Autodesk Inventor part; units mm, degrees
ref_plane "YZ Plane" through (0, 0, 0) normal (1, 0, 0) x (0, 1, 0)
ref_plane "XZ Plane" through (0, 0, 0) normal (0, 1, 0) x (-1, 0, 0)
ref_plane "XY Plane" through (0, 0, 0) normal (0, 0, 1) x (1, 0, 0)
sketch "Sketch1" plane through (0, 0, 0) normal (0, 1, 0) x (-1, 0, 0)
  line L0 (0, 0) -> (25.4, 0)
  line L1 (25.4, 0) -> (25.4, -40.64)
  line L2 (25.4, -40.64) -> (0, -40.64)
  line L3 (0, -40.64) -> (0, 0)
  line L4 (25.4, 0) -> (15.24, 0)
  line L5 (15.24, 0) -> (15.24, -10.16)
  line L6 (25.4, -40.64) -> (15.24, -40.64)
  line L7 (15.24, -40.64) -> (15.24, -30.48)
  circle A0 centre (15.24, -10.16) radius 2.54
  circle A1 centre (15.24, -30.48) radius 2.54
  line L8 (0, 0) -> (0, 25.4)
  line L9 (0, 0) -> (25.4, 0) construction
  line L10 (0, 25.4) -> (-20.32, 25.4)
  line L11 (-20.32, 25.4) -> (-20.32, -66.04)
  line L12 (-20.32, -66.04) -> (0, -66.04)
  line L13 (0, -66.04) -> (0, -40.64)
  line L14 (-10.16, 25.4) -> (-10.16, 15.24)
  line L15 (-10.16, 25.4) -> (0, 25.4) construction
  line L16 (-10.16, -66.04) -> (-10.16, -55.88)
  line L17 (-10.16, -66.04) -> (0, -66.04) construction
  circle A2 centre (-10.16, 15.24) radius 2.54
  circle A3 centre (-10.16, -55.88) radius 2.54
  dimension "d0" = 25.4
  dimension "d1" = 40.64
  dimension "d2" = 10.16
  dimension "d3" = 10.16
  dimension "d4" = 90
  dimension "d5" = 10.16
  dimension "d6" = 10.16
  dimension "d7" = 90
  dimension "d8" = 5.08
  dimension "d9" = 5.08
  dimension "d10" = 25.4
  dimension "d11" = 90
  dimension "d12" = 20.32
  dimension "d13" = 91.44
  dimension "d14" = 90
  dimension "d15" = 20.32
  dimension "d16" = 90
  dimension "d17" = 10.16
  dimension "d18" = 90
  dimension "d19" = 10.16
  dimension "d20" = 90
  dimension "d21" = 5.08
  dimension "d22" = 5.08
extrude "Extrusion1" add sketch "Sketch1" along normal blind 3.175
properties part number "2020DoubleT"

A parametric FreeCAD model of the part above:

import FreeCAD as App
import Part
import Sketcher
from FreeCAD import Vector
Q = App.Units.Quantity

doc = App.newDocument("Part")
params = doc.addObject("Spreadsheet::Sheet", "Params")
for row, (alias, value) in enumerate([
    ("sketch1_diameter", "0.2 in"),
    ("sketch1_height", "1 in"),
    ("sketch1_width", "0.4 in"),
    ("sketch1_height2", "3.6 in"),
    ("pad1_length", "0.125 in"),
], start=1):
    params.set(f"A{row}", alias)
    params.set(f"B{row}", "=" + value)
    params.setAlias(f"B{row}", alias)

body = doc.addObject("PartDesign::Body", "Body")

# Sketch on XZ plane
sketch1 = body.newObject("Sketcher::SketchObject", "Sketch")
sketch1.AttachmentSupport = (doc.getObject("XZ_Plane"), [""])
sketch1.MapMode = "FlatFace"
sketch1.addGeometry(Part.LineSegment(Vector(-15.2, 0, 0), Vector(0, 0, 0)), False)
sketch1.addGeometry(Part.LineSegment(Vector(0, 0, 0), Vector(0, 25.4, 0)), False)
sketch1.addGeometry(Part.LineSegment(Vector(0, 25.4, 0), Vector(10.2, 25.4, 0)), False)
sketch1.addGeometry(Part.LineSegment(Vector(10.2, 25.4, 0), Vector(20.3, 25.4, 0)), False)
sketch1.addGeometry(Part.LineSegment(Vector(20.3, 25.4, 0), Vector(20.3, -66, 0)), False)
sketch1.addGeometry(Part.LineSegment(Vector(20.3, -66, 0), Vector(10.2, -66, 0)), False)
sketch1.addGeometry(Part.LineSegment(Vector(10.2, -66, 0), Vector(0, -66, 0)), False)
sketch1.addGeometry(Part.LineSegment(Vector(0, -66, 0), Vector(0, -40.6, 0)), False)
sketch1.addGeometry(Part.LineSegment(Vector(0, -40.6, 0), Vector(-15.2, -40.6, 0)), False)
sketch1.addGeometry(Part.LineSegment(Vector(-15.2, -40.6, 0), Vector(-25.4, -40.6, 0)), False)
sketch1.addGeometry(Part.LineSegment(Vector(-25.4, -40.6, 0), Vector(-25.4, 0, 0)), False)
sketch1.addGeometry(Part.LineSegment(Vector(-25.4, 0, 0), Vector(-15.2, 0, 0)), False)
sketch1.addGeometry(Part.Circle(Vector(-15.2, -30.5, 0), Vector(0, 0, 1), 2.5), False)
sketch1.addGeometry(Part.Circle(Vector(-15.2, -10.2, 0), Vector(0, 0, 1), 2.5), False)
sketch1.addGeometry(Part.Circle(Vector(10.2, -55.9, 0), Vector(0, 0, 1), 2.5), False)
sketch1.addGeometry(Part.Circle(Vector(10.2, 15.2, 0), Vector(0, 0, 1), 2.5), False)
sketch1.addConstraint(Sketcher.Constraint("Coincident", 0, 2, 1, 1))
sketch1.addConstraint(Sketcher.Constraint("Coincident", 1, 2, 2, 1))
sketch1.addConstraint(Sketcher.Constraint("Coincident", 2, 2, 3, 1))
sketch1.addConstraint(Sketcher.Constraint("Coincident", 3, 2, 4, 1))
sketch1.addConstraint(Sketcher.Constraint("Coincident", 4, 2, 5, 1))
sketch1.addConstraint(Sketcher.Constraint("Coincident", 5, 2, 6, 1))
sketch1.addConstraint(Sketcher.Constraint("Coincident", 6, 2, 7, 1))
sketch1.addConstraint(Sketcher.Constraint("Coincident", 7, 2, 8, 1))
sketch1.addConstraint(Sketcher.Constraint("Coincident", 8, 2, 9, 1))
sketch1.addConstraint(Sketcher.Constraint("Coincident", 9, 2, 10, 1))
sketch1.addConstraint(Sketcher.Constraint("Coincident", 10, 2, 11, 1))
sketch1.addConstraint(Sketcher.Constraint("Coincident", 11, 2, 0, 1))
sketch1.addConstraint(Sketcher.Constraint("Horizontal", 0))
sketch1.addConstraint(Sketcher.Constraint("Vertical", 1))
sketch1.addConstraint(Sketcher.Constraint("Horizontal", 2))
sketch1.addConstraint(Sketcher.Constraint("Horizontal", 3))
sketch1.addConstraint(Sketcher.Constraint("Vertical", 4))
sketch1.addConstraint(Sketcher.Constraint("Horizontal", 5))
sketch1.addConstraint(Sketcher.Constraint("Horizontal", 6))
sketch1.addConstraint(Sketcher.Constraint("Vertical", 7))
sketch1.addConstraint(Sketcher.Constraint("Horizontal", 8))
sketch1.addConstraint(Sketcher.Constraint("Horizontal", 9))
sketch1.addConstraint(Sketcher.Constraint("Vertical", 10))
sketch1.addConstraint(Sketcher.Constraint("Horizontal", 11))
sketch1.addConstraint(Sketcher.Constraint("Coincident", 0, 2, -1, 1))
sketch1.addConstraint(Sketcher.Constraint("Equal", 12, 13))
sketch1.addConstraint(Sketcher.Constraint("Equal", 13, 14))
sketch1.addConstraint(Sketcher.Constraint("Equal", 14, 15))
sketch1.addConstraint(Sketcher.Constraint("PointOnObject", 6, 2, -2))
sketch1.addConstraint(Sketcher.Constraint("Vertical", 12, 3, 13, 3))
sketch1.addConstraint(Sketcher.Constraint("Vertical", 14, 3, 15, 3))
sketch1.addConstraint(Sketcher.Constraint("Vertical", 15, 3, 2, 2))
sketch1.addConstraint(Sketcher.Constraint("Vertical", 2, 2, 5, 2))
sketch1.addConstraint(Sketcher.Constraint("Vertical", 13, 3, 8, 2))
sketch1.addConstraint(Sketcher.Constraint("Vertical", 8, 2, 11, 2))
sketch1.addConstraint(Sketcher.Constraint("Equal", 2, 3))
sketch1.addConstraint(Sketcher.Constraint("Equal", 6, 9))
sketch1.addConstraint(Sketcher.Constraint("Equal", 1, 7))
sketch1.addConstraint(Sketcher.Constraint("Diameter", 12, Q("0.2 in")))
sketch1.addConstraint(Sketcher.Constraint("DistanceY", 1, 1, 1, 2, Q("1 in")))
sketch1.addConstraint(Sketcher.Constraint("DistanceX", 2, 1, 2, 2, Q("0.4 in")))
sketch1.addConstraint(Sketcher.Constraint("DistanceY", 4, 2, 4, 1, Q("3.6 in")))
sketch1.addConstraint(Sketcher.Constraint("DistanceX", 9, 2, -1, 1, Q("1 in")))
sketch1.addConstraint(Sketcher.Constraint("DistanceY", 14, 3, 12, 3, Q("1 in")))
sketch1.addConstraint(Sketcher.Constraint("DistanceY", 13, 3, 15, 3, Q("1 in")))
sketch1.addConstraint(Sketcher.Constraint("DistanceY", 13, 3, -1, 1, Q("0.4 in")))
sketch1.addConstraint(Sketcher.Constraint("DistanceY", 12, 3, 13, 3, Q("0.8 in")))
sketch1.setExpression("Constraints[38]", "Params.sketch1_diameter")
sketch1.setExpression("Constraints[39]", "Params.sketch1_height")
sketch1.setExpression("Constraints[40]", "Params.sketch1_width")
sketch1.setExpression("Constraints[41]", "Params.sketch1_height2")
pad1 = body.newObject("PartDesign::Pad", "Pad")
pad1.Profile = sketch1
pad1.setExpression("Length", "Params.pad1_length")
pad1.Reversed = True

doc.recompute()
